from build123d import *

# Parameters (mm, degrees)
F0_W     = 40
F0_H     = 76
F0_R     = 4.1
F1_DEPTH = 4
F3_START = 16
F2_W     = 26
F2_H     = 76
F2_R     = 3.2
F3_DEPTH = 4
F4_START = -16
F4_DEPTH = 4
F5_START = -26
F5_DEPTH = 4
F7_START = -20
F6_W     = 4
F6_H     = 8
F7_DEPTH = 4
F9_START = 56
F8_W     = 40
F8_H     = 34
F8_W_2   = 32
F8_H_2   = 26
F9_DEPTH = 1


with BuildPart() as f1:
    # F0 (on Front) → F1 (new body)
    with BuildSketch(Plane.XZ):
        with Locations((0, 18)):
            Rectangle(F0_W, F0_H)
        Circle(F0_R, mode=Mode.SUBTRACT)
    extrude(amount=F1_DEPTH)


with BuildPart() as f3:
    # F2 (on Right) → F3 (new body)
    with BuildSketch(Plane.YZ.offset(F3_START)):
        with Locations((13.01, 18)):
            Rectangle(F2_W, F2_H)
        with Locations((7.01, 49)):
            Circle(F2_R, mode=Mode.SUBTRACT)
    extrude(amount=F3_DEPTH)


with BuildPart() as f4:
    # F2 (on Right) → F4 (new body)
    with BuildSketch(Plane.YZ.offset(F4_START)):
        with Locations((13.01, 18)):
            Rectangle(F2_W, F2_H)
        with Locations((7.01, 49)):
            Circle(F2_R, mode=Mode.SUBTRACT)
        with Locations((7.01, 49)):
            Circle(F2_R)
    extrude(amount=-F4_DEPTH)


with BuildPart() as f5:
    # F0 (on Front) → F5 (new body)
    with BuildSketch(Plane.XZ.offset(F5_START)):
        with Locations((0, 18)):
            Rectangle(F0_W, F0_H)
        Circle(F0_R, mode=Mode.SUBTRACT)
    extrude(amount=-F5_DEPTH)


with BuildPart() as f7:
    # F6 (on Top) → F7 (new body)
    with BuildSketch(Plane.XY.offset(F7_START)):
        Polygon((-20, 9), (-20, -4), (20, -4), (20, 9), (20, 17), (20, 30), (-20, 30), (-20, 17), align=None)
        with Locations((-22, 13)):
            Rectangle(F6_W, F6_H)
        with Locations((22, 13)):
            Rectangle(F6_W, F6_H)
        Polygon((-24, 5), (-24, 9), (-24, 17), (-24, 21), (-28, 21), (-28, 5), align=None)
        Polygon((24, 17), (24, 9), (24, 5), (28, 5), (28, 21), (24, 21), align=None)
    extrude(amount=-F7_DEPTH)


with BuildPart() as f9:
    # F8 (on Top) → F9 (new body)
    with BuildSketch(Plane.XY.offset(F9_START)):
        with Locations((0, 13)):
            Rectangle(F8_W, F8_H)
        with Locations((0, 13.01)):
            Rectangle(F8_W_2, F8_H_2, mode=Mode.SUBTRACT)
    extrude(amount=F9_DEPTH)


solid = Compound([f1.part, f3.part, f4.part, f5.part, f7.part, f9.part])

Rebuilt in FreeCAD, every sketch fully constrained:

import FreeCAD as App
import Part
import Sketcher
from FreeCAD import Vector

doc = App.newDocument("Part")
params = doc.addObject("Spreadsheet::Sheet", "Params")
for row, (alias, value) in enumerate([
    ("sketch1_diameter", "8.2 mm"),
    ("sketch1_width", "40 mm"),
    ("sketch1_height", "76 mm"),
    ("pad1_length", "4 mm"),
    ("sketch2_diameter", "6.4 mm"),
    ("sketch2_width", "26 mm"),
    ("sketch2_height", "76 mm"),
    ("pad2_length", "4 mm"),
    ("sketch3_width", "26 mm"),
    ("sketch3_height", "76 mm"),
    ("pad3_length", "4 mm"),
    ("sketch4_diameter", "8.2 mm"),
    ("sketch4_width", "40 mm"),
    ("sketch4_height", "76 mm"),
    ("pad4_length", "4 mm"),
    ("sketch5_width", "40 mm"),
    ("sketch5_width2", "4 mm"),
    ("sketch5_height", "13 mm"),
    ("sketch5_height2", "16 mm"),
    ("pad5_length", "4 mm"),
    ("sketch6_width", "40 mm"),
    ("sketch6_width2", "32 mm"),
    ("sketch6_height", "34 mm"),
    ("sketch6_height2", "26 mm"),
    ("pad6_length", "1 mm"),
], start=1):
    params.set(f"A{row}", alias)
    params.set(f"B{row}", "=" + value)
    params.setAlias(f"B{row}", alias)

body = doc.addObject("PartDesign::Body", "Body")

# Sketch on XZ plane
sketch1 = body.newObject("Sketcher::SketchObject", "Sketch")
sketch1.AttachmentSupport = (doc.getObject("XZ_Plane"), [""])
sketch1.MapMode = "FlatFace"
sketch1.addGeometry([
    Part.LineSegment(Vector(-20, 56, 0), Vector(-20, -20, 0)),  # 0
    Part.LineSegment(Vector(-20, -20, 0), Vector(20, -20, 0)),  # 1
    Part.LineSegment(Vector(20, -20, 0), Vector(20, 56, 0)),  # 2
    Part.LineSegment(Vector(20, 56, 0), Vector(-20, 56, 0)),  # 3
    Part.Circle(Vector(0, 0, 0), Vector(0, 0, 1), 4.1),  # 4
], False)
sketch1.addConstraint([
    Sketcher.Constraint("Coincident", 0, 2, 1, 1),
    Sketcher.Constraint("Coincident", 1, 2, 2, 1),
    Sketcher.Constraint("Coincident", 2, 2, 3, 1),
    Sketcher.Constraint("Coincident", 3, 2, 0, 1),
    Sketcher.Constraint("Vertical", 0),
    Sketcher.Constraint("Horizontal", 1),
    Sketcher.Constraint("Vertical", 2),
    Sketcher.Constraint("Horizontal", 3),
    Sketcher.Constraint("Coincident", 4, 3, -1, 1),
    Sketcher.Constraint("Diameter", 4, 8.2),
    Sketcher.Constraint("DistanceX", 1, 1, 1, 2, 40.0),
    Sketcher.Constraint("DistanceY", 0, 2, 0, 1, 76.0),
    Sketcher.Constraint("DistanceX", 0, 2, -1, 1, 20.0),
    Sketcher.Constraint("DistanceY", 0, 2, -1, 1, 20.0),
])
sketch1.setExpression("Constraints[9]", "Params.sketch1_diameter")
sketch1.setExpression("Constraints[10]", "Params.sketch1_width")
sketch1.setExpression("Constraints[11]", "Params.sketch1_height")
pad1 = body.newObject("PartDesign::Pad", "Pad")
pad1.Profile = sketch1
pad1.setExpression("Length", "Params.pad1_length")
body2 = doc.addObject("PartDesign::Body", "Body001")

# Sketch on YZ plane
sketch2 = body2.newObject("Sketcher::SketchObject", "Sketch001")
sketch2.AttachmentSupport = (doc.getObject("YZ_Plane001"), [""])
sketch2.MapMode = "FlatFace"
sketch2.AttachmentOffset = App.Placement(Vector(0, 0, 16), App.Rotation())
sketch2.addGeometry([
    Part.LineSegment(Vector(0, 56, 0), Vector(0, -20, 0)),  # 0
    Part.LineSegment(Vector(0, -20, 0), Vector(26, -20, 0)),  # 1
    Part.LineSegment(Vector(26, -20, 0), Vector(26, 56, 0)),  # 2
    Part.LineSegment(Vector(26, 56, 0), Vector(0, 56, 0)),  # 3
    Part.Circle(Vector(7, 49, 0), Vector(0, 0, 1), 3.2),  # 4
], False)
sketch2.addConstraint([
    Sketcher.Constraint("Coincident", 0, 2, 1, 1),
    Sketcher.Constraint("Coincident", 1, 2, 2, 1),
    Sketcher.Constraint("Coincident", 2, 2, 3, 1),
    Sketcher.Constraint("Coincident", 3, 2, 0, 1),
    Sketcher.Constraint("Vertical", 0),
    Sketcher.Constraint("Horizontal", 1),
    Sketcher.Constraint("Vertical", 2),
    Sketcher.Constraint("Horizontal", 3),
    Sketcher.Constraint("Diameter", 4, 6.4),
    Sketcher.Constraint("DistanceX", 1, 1, 1, 2, 26.0),
    Sketcher.Constraint("DistanceY", 0, 2, 0, 1, 76.0),
    Sketcher.Constraint("DistanceY", -1, 1, 4, 3, 49.0),
    Sketcher.Constraint("DistanceY", 0, 2, -1, 1, 20.0),
    Sketcher.Constraint("DistanceX", 0, 2, 4, 3, 7.0),
    Sketcher.Constraint("DistanceX", -1, 1, 4, 3, 7.01),
])
sketch2.setExpression("Constraints[8]", "Params.sketch2_diameter")
sketch2.setExpression("Constraints[9]", "Params.sketch2_width")
sketch2.setExpression("Constraints[10]", "Params.sketch2_height")
pad2 = body2.newObject("PartDesign::Pad", "Pad001")
pad2.Profile = sketch2
pad2.setExpression("Length", "Params.pad2_length")
body3 = doc.addObject("PartDesign::Body", "Body002")

# Sketch on YZ plane
sketch3 = body3.newObject("Sketcher::SketchObject", "Sketch002")
sketch3.AttachmentSupport = (doc.getObject("YZ_Plane002"), [""])
sketch3.MapMode = "FlatFace"
sketch3.AttachmentOffset = App.Placement(Vector(0, 0, -16), App.Rotation())
sketch3.addGeometry([
    Part.LineSegment(Vector(0, 56, 0), Vector(0, -20, 0)),
    Part.LineSegment(Vector(0, -20, 0), Vector(26, -20, 0)),
    Part.LineSegment(Vector(26, -20, 0), Vector(26, 56, 0)),
    Part.LineSegment(Vector(26, 56, 0), Vector(0, 56, 0)),
], False)
sketch3.addConstraint([
    Sketcher.Constraint("Coincident", 0, 2, 1, 1),
    Sketcher.Constraint("Coincident", 1, 2, 2, 1),
    Sketcher.Constraint("Coincident", 2, 2, 3, 1),
    Sketcher.Constraint("Coincident", 3, 2, 0, 1),
    Sketcher.Constraint("Vertical", 0),
    Sketcher.Constraint("Horizontal", 1),
    Sketcher.Constraint("Vertical", 2),
    Sketcher.Constraint("Horizontal", 3),
    Sketcher.Constraint("DistanceX", 1, 1, 1, 2, 26.0),
    Sketcher.Constraint("DistanceY", 0, 2, 0, 1, 76.0),
    Sketcher.Constraint("DistanceY", 0, 2, -1, 1, 20.0),
    Sketcher.Constraint("DistanceX", -1, 1, 0, 2, 0.01),
])
sketch3.setExpression("Constraints[8]", "Params.sketch3_width")
sketch3.setExpression("Constraints[9]", "Params.sketch3_height")
pad3 = body3.newObject("PartDesign::Pad", "Pad002")
pad3.Profile = sketch3
pad3.setExpression("Length", "Params.pad3_length")
pad3.Reversed = True
body4 = doc.addObject("PartDesign::Body", "Body003")

# Sketch on XZ plane
sketch4 = body4.newObject("Sketcher::SketchObject", "Sketch003")
sketch4.AttachmentSupport = (doc.getObject("XZ_Plane003"), [""])
sketch4.MapMode = "FlatFace"
sketch4.AttachmentOffset = App.Placement(Vector(0, 0, -26), App.Rotation())
sketch4.addGeometry([
    Part.LineSegment(Vector(-20, 56, 0), Vector(-20, -20, 0)),  # 0
    Part.LineSegment(Vector(-20, -20, 0), Vector(20, -20, 0)),  # 1
    Part.LineSegment(Vector(20, -20, 0), Vector(20, 56, 0)),  # 2
    Part.LineSegment(Vector(20, 56, 0), Vector(-20, 56, 0)),  # 3
    Part.Circle(Vector(0, 0, 0), Vector(0, 0, 1), 4.1),  # 4
], False)
sketch4.addConstraint([
    Sketcher.Constraint("Coincident", 0, 2, 1, 1),
    Sketcher.Constraint("Coincident", 1, 2, 2, 1),
    Sketcher.Constraint("Coincident", 2, 2, 3, 1),
    Sketcher.Constraint("Coincident", 3, 2, 0, 1),
    Sketcher.Constraint("Vertical", 0),
    Sketcher.Constraint("Horizontal", 1),
    Sketcher.Constraint("Vertical", 2),
    Sketcher.Constraint("Horizontal", 3),
    Sketcher.Constraint("Coincident", 4, 3, -1, 1),
    Sketcher.Constraint("Diameter", 4, 8.2),
    Sketcher.Constraint("DistanceX", 1, 1, 1, 2, 40.0),
    Sketcher.Constraint("DistanceY", 0, 2, 0, 1, 76.0),
    Sketcher.Constraint("DistanceX", 0, 2, -1, 1, 20.0),
    Sketcher.Constraint("DistanceY", 0, 2, -1, 1, 20.0),
])
sketch4.setExpression("Constraints[9]", "Params.sketch4_diameter")
sketch4.setExpression("Constraints[10]", "Params.sketch4_width")
sketch4.setExpression("Constraints[11]", "Params.sketch4_height")
pad4 = body4.newObject("PartDesign::Pad", "Pad003")
pad4.Profile = sketch4
pad4.setExpression("Length", "Params.pad4_length")
pad4.Reversed = True
body5 = doc.addObject("PartDesign::Body", "Body004")

# Sketch on XY plane
sketch5 = body5.newObject("Sketcher::SketchObject", "Sketch004")
sketch5.AttachmentSupport = (doc.getObject("XY_Plane004"), [""])
sketch5.MapMode = "FlatFace"
sketch5.AttachmentOffset = App.Placement(Vector(0, 0, -20), App.Rotation())
sketch5.addGeometry([
    Part.LineSegment(Vector(-20, -4, 0), Vector(20, -4, 0)),  # 0
    Part.LineSegment(Vector(20, -4, 0), Vector(20, 9, 0)),  # 1
    Part.LineSegment(Vector(20, 9, 0), Vector(24, 9, 0)),  # 2
    Part.LineSegment(Vector(24, 9, 0), Vector(24, 5, 0)),  # 3
    Part.LineSegment(Vector(24, 5, 0), Vector(28, 5, 0)),  # 4
    Part.LineSegment(Vector(28, 5, 0), Vector(28, 21, 0)),  # 5
    Part.LineSegment(Vector(28, 21, 0), Vector(24, 21, 0)),  # 6
    Part.LineSegment(Vector(24, 21, 0), Vector(24, 17, 0)),  # 7
    Part.LineSegment(Vector(24, 17, 0), Vector(20, 17, 0)),  # 8
    Part.LineSegment(Vector(20, 17, 0), Vector(20, 30, 0)),  # 9
    Part.LineSegment(Vector(20, 30, 0), Vector(-20, 30, 0)),  # 10
    Part.LineSegment(Vector(-20, 30, 0), Vector(-20, 17, 0)),  # 11
    Part.LineSegment(Vector(-20, 17, 0), Vector(-24, 17, 0)),  # 12
    Part.LineSegment(Vector(-24, 17, 0), Vector(-24, 21, 0)),  # 13
    Part.LineSegment(Vector(-24, 21, 0), Vector(-28, 21, 0)),  # 14
    Part.LineSegment(Vector(-28, 21, 0), Vector(-28, 5, 0)),  # 15
    Part.LineSegment(Vector(-28, 5, 0), Vector(-24, 5, 0)),  # 16
    Part.LineSegment(Vector(-24, 5, 0), Vector(-24, 9, 0)),  # 17
    Part.LineSegment(Vector(-24, 9, 0), Vector(-20, 9, 0)),  # 18
    Part.LineSegment(Vector(-20, 9, 0), Vector(-20, -4, 0)),  # 19
], False)
sketch5.addConstraint([
    Sketcher.Constraint("Coincident", 0, 2, 1, 1),
    Sketcher.Constraint("Coincident", 1, 2, 2, 1),
    Sketcher.Constraint("Coincident", 2, 2, 3, 1),
    Sketcher.Constraint("Coincident", 3, 2, 4, 1),
    Sketcher.Constraint("Coincident", 4, 2, 5, 1),
    Sketcher.Constraint("Coincident", 5, 2, 6, 1),
    Sketcher.Constraint("Coincident", 6, 2, 7, 1),
    Sketcher.Constraint("Coincident", 7, 2, 8, 1),
    Sketcher.Constraint("Coincident", 8, 2, 9, 1),
    Sketcher.Constraint("Coincident", 9, 2, 10, 1),
    Sketcher.Constraint("Coincident", 10, 2, 11, 1),
    Sketcher.Constraint("Coincident", 11, 2, 12, 1),
    Sketcher.Constraint("Coincident", 12, 2, 13, 1),
    Sketcher.Constraint("Coincident", 13, 2, 14, 1),
    Sketcher.Constraint("Coincident", 14, 2, 15, 1),
    Sketcher.Constraint("Coincident", 15, 2, 16, 1),
    Sketcher.Constraint("Coincident", 16, 2, 17, 1),
    Sketcher.Constraint("Coincident", 17, 2, 18, 1),
    Sketcher.Constraint("Coincident", 18, 2, 19, 1),
    Sketcher.Constraint("Coincident", 19, 2, 0, 1),
    Sketcher.Constraint("Horizontal", 0),
    Sketcher.Constraint("Vertical", 1),
    Sketcher.Constraint("Horizontal", 2),
    Sketcher.Constraint("Vertical", 3),
    Sketcher.Constraint("Horizontal", 4),
    Sketcher.Constraint("Vertical", 5),
    Sketcher.Constraint("Horizontal", 6),
    Sketcher.Constraint("Vertical", 7),
    Sketcher.Constraint("Horizontal", 8),
    Sketcher.Constraint("Vertical", 9),
    Sketcher.Constraint("Horizontal", 10),
    Sketcher.Constraint("Vertical", 11),
    Sketcher.Constraint("Horizontal", 12),
    Sketcher.Constraint("Vertical", 13),
    Sketcher.Constraint("Horizontal", 14),
    Sketcher.Constraint("Vertical", 15),
    Sketcher.Constraint("Horizontal", 16),
    Sketcher.Constraint("Vertical", 17),
    Sketcher.Constraint("Horizontal", 18),
    Sketcher.Constraint("Vertical", 19),
    Sketcher.Constraint("Symmetric", 8, 2, 11, 2, -2),
    Sketcher.Constraint("Symmetric", 6, 2, 13, 2, -2),
    Sketcher.Constraint("Symmetric", 4, 2, 15, 2, -2),
    Sketcher.Constraint("Symmetric", 2, 2, 17, 2, -2),
    Sketcher.Constraint("Vertical", 3, 2, 6, 2),
    Sketcher.Constraint("Vertical", 1, 2, 8, 2),
    Sketcher.Constraint("Vertical", 11, 2, 18, 2),
    Sketcher.Constraint("Equal", 2, 4),
    Sketcher.Constraint("Equal", 18, 3),
    Sketcher.Constraint("Equal", 3, 7),
    Sketcher.Constraint("Equal", 1, 9),
    Sketcher.Constraint("DistanceX", 0, 1, 0, 2, 40.0),
    Sketcher.Constraint("DistanceX", 2, 1, 2, 2, 4.0),
    Sketcher.Constraint("DistanceY", 1, 1, 1, 2, 13.0),
    Sketcher.Constraint("DistanceY", 5, 1, 5, 2, 16.0),
    Sketcher.Constraint("DistanceY", 0, 2, -1, 1, 4.0),
])
sketch5.setExpression("Constraints[51]", "Params.sketch5_width")
sketch5.setExpression("Constraints[52]", "Params.sketch5_width2")
sketch5.setExpression("Constraints[53]", "Params.sketch5_height")
sketch5.setExpression("Constraints[54]", "Params.sketch5_height2")
pad5 = body5.newObject("PartDesign::Pad", "Pad004")
pad5.Profile = sketch5
pad5.setExpression("Length", "Params.pad5_length")
pad5.Reversed = True
body6 = doc.addObject("PartDesign::Body", "Body005")

# Sketch on XY plane
sketch6 = body6.newObject("Sketcher::SketchObject", "Sketch005")
sketch6.AttachmentSupport = (doc.getObject("XY_Plane005"), [""])
sketch6.MapMode = "FlatFace"
sketch6.AttachmentOffset = App.Placement(Vector(0, 0, 56), App.Rotation())
sketch6.addGeometry([
    Part.LineSegment(Vector(-20, 30, 0), Vector(-20, -4, 0)),  # 0
    Part.LineSegment(Vector(-20, -4, 0), Vector(20, -4, 0)),  # 1
    Part.LineSegment(Vector(20, -4, 0), Vector(20, 30, 0)),  # 2
    Part.LineSegment(Vector(20, 30, 0), Vector(-20, 30, 0)),  # 3
    Part.LineSegment(Vector(16, 0, 0), Vector(-16, 0, 0)),  # 4
    Part.LineSegment(Vector(-16, 0, 0), Vector(-16, 26, 0)),  # 5
    Part.LineSegment(Vector(-16, 26, 0), Vector(16, 26, 0)),  # 6
    Part.LineSegment(Vector(16, 26, 0), Vector(16, 0, 0)),  # 7
], False)
sketch6.addConstraint([
    Sketcher.Constraint("Coincident", 0, 2, 1, 1),
    Sketcher.Constraint("Coincident", 1, 2, 2, 1),
    Sketcher.Constraint("Coincident", 2, 2, 3, 1),
    Sketcher.Constraint("Coincident", 3, 2, 0, 1),
    Sketcher.Constraint("Coincident", 4, 2, 5, 1),
    Sketcher.Constraint("Coincident", 5, 2, 6, 1),
    Sketcher.Constraint("Coincident", 6, 2, 7, 1),
    Sketcher.Constraint("Coincident", 7, 2, 4, 1),
    Sketcher.Constraint("Vertical", 0),
    Sketcher.Constraint("Horizontal", 1),
    Sketcher.Constraint("Vertical", 2),
    Sketcher.Constraint("Horizontal", 3),
    Sketcher.Constraint("Horizontal", 4),
    Sketcher.Constraint("Vertical", 5),
    Sketcher.Constraint("Horizontal", 6),
    Sketcher.Constraint("Vertical", 7),
    Sketcher.Constraint("DistanceX", 1, 1, 1, 2, 40.0),
    Sketcher.Constraint("DistanceX", 4, 2, 4, 1, 32.0),
    Sketcher.Constraint("DistanceY", 0, 2, 0, 1, 34.0),
    Sketcher.Constraint("DistanceY", 5, 1, 5, 2, 26.0),
    Sketcher.Constraint("DistanceX", 0, 2, -1, 1, 20.0),
    Sketcher.Constraint("DistanceY", 0, 2, -1, 1, 4.0),
    Sketcher.Constraint("DistanceX", 4, 2, -1, 1, 16.0),
    Sketcher.Constraint("DistanceY", -1, 1, 4, 2, 0.01),
])
sketch6.setExpression("Constraints[16]", "Params.sketch6_width")
sketch6.setExpression("Constraints[17]", "Params.sketch6_width2")
sketch6.setExpression("Constraints[18]", "Params.sketch6_height")
sketch6.setExpression("Constraints[19]", "Params.sketch6_height2")
pad6 = body6.newObject("PartDesign::Pad", "Pad005")
pad6.Profile = sketch6
pad6.setExpression("Length", "Params.pad6_length")

doc.recompute()
